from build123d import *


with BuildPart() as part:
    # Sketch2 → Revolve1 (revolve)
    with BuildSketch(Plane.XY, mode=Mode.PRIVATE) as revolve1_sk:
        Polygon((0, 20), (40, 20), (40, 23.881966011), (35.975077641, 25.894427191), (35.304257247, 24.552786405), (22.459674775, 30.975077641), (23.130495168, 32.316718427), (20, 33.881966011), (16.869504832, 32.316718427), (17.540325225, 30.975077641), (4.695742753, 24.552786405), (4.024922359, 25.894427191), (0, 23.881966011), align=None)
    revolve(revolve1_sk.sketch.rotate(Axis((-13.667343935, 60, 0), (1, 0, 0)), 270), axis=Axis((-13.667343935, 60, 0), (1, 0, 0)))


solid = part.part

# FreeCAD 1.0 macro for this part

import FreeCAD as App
import Part
import Sketcher

V = App.Vector
Q = App.Units.Quantity

doc = App.newDocument("Part")
body = doc.addObject("PartDesign::Body", "Body")

# Sketch on XY plane
sketch1 = doc.addObject("Sketcher::SketchObject", "Sketch")
body.addObject(sketch1)
sketch1.AttachmentSupport = (doc.XY_Plane, [""])
sketch1.MapMode = "FlatFace"
sketch1.addGeometry([
    Part.LineSegment(V(0, 20, 0), V(40, 20, 0)),  # 0
    Part.LineSegment(V(40, 20, 0), V(40, 23.9, 0)),  # 1
    Part.LineSegment(V(40, 23.9, 0), V(36, 25.9, 0)),  # 2
    Part.LineSegment(V(36, 25.9, 0), V(35.3, 24.6, 0)),  # 3
    Part.LineSegment(V(35.3, 24.6, 0), V(22.5, 31, 0)),  # 4
    Part.LineSegment(V(22.5, 31, 0), V(23.1, 32.3, 0)),  # 5
    Part.LineSegment(V(23.1, 32.3, 0), V(20, 33.9, 0)),  # 6
    Part.LineSegment(V(20, 33.9, 0), V(16.9, 32.3, 0)),  # 7
    Part.LineSegment(V(16.9, 32.3, 0), V(17.5, 31, 0)),  # 8
    Part.LineSegment(V(17.5, 31, 0), V(4.7, 24.6, 0)),  # 9
    Part.LineSegment(V(4.7, 24.6, 0), V(4, 25.9, 0)),  # 10
    Part.LineSegment(V(4, 25.9, 0), V(0, 23.9, 0)),  # 11
    Part.LineSegment(V(0, 23.9, 0), V(0, 20, 0)),  # 12
], False)
sketch1.addGeometry(Part.LineSegment(V(0, 60, 0), V(40, 60, 0)), True)  # axis
sketch1.addConstraint([
    Sketcher.Constraint("Coincident", 0, 2, 1, 1),
    Sketcher.Constraint("Coincident", 1, 2, 2, 1),
    Sketcher.Constraint("Coincident", 2, 2, 3, 1),
    Sketcher.Constraint("Coincident", 3, 2, 4, 1),
    Sketcher.Constraint("Coincident", 4, 2, 5, 1),
    Sketcher.Constraint("Coincident", 5, 2, 6, 1),
    Sketcher.Constraint("Coincident", 6, 2, 7, 1),
    Sketcher.Constraint("Coincident", 7, 2, 8, 1),
    Sketcher.Constraint("Coincident", 8, 2, 9, 1),
    Sketcher.Constraint("Coincident", 9, 2, 10, 1),
    Sketcher.Constraint("Coincident", 10, 2, 11, 1),
    Sketcher.Constraint("Coincident", 11, 2, 12, 1),
    Sketcher.Constraint("Coincident", 12, 2, 0, 1),
    Sketcher.Constraint("Horizontal", 0),
    Sketcher.Constraint("Vertical", 1),
    Sketcher.Constraint("Vertical", 12),
    Sketcher.Constraint("Horizontal", 13),
    Sketcher.Constraint("PointOnObject", 11, 2, -2),
    Sketcher.Constraint("PointOnObject", 13, 1, -2),
    Sketcher.Constraint("Perpendicular", 2, 3),
    Sketcher.Constraint("Perpendicular", 3, 4),
    Sketcher.Constraint("Perpendicular", 4, 5),
    Sketcher.Constraint("Perpendicular", 5, 6),
    Sketcher.Constraint("Perpendicular", 7, 8),
    Sketcher.Constraint("Perpendicular", 8, 9),
    Sketcher.Constraint("Perpendicular", 9, 10),
    Sketcher.Constraint("Perpendicular", 10, 11),
    Sketcher.Constraint("Horizontal", 5, 2, 7, 2),
    Sketcher.Constraint("Horizontal", 4, 2, 8, 2),
    Sketcher.Constraint("Horizontal", 3, 2, 9, 2),
    Sketcher.Constraint("Horizontal", 2, 2, 10, 2),
    Sketcher.Constraint("Horizontal", 1, 2, 11, 2),
    Sketcher.Constraint("Vertical", 1, 2, 13, 2),
    Sketcher.Constraint("Equal", 3, 5),
    Sketcher.Constraint("Equal", 6, 7),
    Sketcher.Constraint("DistanceX", 0, 1, 0, 2, Q("40 mm")),
    Sketcher.Constraint("DistanceY", -1, 1, 0, 2, Q("20 mm")),
    Sketcher.Constraint("DistanceY", -1, 1, 13, 1, Q("60 mm")),
    Sketcher.Constraint("DistanceY", 1, 2, 6, 2, Q("10 mm")),
    Sketcher.Constraint("Distance", 2, Q("4.5 mm")),
    Sketcher.Constraint("Distance", 3, Q("1.5 mm")),
    Sketcher.Constraint("Distance", 6, Q("3.5 mm")),
    Sketcher.Constraint("DistanceY", 1, 1, 1, 2, Q("3.881966 mm")),
])
revolution = doc.addObject("PartDesign::Revolution", "Revolution")
body.addObject(revolution)
revolution.Profile = sketch1
revolution.ReferenceAxis = (sketch1, ["Axis0"])
revolution.Angle = 360

doc.recompute()
